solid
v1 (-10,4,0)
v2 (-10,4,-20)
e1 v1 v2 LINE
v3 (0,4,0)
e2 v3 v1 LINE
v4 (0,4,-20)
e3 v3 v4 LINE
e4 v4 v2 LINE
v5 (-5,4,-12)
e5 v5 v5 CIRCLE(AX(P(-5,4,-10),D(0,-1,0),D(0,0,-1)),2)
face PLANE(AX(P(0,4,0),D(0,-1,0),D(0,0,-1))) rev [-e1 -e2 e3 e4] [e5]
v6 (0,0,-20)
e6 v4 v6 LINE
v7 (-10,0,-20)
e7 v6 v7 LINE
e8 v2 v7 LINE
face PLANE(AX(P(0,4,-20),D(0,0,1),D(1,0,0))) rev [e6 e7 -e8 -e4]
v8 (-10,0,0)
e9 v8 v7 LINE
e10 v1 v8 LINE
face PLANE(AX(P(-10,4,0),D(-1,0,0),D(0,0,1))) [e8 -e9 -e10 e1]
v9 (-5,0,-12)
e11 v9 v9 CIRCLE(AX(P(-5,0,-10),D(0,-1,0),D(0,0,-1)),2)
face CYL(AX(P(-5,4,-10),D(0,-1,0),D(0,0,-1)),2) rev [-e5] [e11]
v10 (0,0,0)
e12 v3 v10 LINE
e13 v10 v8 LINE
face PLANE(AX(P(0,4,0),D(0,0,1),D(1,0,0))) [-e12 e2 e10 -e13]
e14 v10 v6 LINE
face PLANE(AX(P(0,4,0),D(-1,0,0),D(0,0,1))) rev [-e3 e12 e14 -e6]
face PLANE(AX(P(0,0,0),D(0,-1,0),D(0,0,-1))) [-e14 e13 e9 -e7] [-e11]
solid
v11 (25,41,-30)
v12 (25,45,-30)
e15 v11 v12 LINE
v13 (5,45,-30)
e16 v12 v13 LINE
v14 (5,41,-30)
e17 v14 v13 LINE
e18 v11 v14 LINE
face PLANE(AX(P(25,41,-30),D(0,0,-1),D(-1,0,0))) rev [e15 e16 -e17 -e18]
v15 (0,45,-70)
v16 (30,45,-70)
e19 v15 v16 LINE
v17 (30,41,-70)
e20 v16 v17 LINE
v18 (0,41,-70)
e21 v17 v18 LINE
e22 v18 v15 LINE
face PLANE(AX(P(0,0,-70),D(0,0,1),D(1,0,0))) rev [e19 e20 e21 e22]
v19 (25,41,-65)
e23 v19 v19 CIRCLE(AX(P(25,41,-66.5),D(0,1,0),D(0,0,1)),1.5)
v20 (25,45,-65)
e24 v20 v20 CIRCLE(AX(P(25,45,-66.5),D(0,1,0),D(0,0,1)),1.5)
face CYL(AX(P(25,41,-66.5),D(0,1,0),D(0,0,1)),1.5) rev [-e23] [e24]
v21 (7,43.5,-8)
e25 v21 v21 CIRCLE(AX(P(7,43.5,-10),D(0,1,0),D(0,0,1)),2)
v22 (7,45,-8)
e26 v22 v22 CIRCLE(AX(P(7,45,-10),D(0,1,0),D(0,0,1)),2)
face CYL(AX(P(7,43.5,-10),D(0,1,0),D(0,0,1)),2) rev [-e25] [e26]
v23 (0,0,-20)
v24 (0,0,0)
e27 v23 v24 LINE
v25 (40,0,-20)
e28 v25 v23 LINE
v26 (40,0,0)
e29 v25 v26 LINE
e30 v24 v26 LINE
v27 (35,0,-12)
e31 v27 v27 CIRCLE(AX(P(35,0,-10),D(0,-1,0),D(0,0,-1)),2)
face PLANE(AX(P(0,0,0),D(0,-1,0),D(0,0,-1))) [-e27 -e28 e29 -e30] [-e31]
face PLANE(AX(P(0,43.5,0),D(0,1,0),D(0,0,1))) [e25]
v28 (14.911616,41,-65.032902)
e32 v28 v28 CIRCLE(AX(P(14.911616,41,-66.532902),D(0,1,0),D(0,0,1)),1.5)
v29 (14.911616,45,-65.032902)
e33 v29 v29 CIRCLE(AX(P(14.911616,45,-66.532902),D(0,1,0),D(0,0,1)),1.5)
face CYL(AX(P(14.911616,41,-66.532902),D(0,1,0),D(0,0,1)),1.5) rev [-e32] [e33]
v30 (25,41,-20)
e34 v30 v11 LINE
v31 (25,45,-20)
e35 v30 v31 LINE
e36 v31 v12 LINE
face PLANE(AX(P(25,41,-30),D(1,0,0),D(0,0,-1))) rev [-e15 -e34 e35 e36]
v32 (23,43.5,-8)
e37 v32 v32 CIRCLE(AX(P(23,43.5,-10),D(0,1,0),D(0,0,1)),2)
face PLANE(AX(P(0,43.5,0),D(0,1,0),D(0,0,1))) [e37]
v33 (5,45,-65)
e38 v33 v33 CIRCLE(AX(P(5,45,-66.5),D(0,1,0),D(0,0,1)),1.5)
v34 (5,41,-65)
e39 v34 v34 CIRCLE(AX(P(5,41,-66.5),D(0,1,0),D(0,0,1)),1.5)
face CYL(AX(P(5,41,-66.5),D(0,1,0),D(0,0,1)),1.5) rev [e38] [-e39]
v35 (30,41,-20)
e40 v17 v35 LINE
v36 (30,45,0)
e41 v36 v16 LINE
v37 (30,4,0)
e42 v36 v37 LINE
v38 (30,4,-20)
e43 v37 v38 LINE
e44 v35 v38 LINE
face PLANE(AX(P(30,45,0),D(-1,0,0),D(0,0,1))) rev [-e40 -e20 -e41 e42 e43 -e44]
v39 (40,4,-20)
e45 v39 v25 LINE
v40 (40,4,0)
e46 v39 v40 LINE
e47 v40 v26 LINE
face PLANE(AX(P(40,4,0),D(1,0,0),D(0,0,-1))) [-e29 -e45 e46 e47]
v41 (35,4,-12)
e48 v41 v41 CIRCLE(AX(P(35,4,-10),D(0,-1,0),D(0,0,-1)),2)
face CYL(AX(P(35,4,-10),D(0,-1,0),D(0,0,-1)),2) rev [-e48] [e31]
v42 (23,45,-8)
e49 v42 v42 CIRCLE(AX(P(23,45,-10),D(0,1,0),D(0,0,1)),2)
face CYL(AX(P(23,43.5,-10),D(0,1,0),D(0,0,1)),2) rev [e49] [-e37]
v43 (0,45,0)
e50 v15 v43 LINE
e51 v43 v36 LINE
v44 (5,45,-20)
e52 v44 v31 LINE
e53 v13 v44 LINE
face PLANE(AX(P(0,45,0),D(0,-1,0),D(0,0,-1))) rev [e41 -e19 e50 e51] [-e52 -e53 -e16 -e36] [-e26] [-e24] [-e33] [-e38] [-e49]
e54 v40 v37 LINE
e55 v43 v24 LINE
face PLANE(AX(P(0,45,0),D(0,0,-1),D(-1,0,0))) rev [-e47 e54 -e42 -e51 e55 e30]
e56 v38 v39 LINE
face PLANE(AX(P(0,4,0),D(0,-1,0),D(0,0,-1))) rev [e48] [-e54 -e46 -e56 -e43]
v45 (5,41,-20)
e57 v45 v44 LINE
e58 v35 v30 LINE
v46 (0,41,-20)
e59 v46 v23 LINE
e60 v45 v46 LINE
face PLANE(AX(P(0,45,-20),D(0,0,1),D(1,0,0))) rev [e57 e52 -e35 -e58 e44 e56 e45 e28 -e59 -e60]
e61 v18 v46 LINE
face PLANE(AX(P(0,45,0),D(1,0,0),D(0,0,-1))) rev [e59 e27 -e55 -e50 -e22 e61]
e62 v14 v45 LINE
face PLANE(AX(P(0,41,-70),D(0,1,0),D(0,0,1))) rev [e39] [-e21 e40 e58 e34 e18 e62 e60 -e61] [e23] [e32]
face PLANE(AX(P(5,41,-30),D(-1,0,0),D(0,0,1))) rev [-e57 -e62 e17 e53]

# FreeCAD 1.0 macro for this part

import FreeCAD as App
import Part
import Sketcher

V = App.Vector
Q = App.Units.Quantity


def add_polygon(sketch, points):
    """Adds a closed chain of lines whose ends are joined by coincident constraints."""
    first, n = sketch.GeometryCount, len(points)
    for a, b in zip(points, points[1:] + points[:1]):
        sketch.addGeometry(Part.LineSegment(App.Vector(*a, 0), App.Vector(*b, 0)), False)
    for i in range(n):
        sketch.addConstraint(Sketcher.Constraint("Coincident", first + i, 2, first + (i + 1) % n, 1))

doc = App.newDocument("Part")
body = doc.addObject("PartDesign::Body", "Body")

# Sketch on XZ plane
sketch1 = body.newObject("Sketcher::SketchObject", "Sketch")
sketch1.AttachmentSupport = (doc.getObject("XZ_Plane"), [""])
sketch1.MapMode = "FlatFace"
add_polygon(sketch1, [(0, -20), (0, 0), (30, 0), (30, -20)])  # lines 0-3
sketch1.addConstraint(Sketcher.Constraint("Vertical", 0))
sketch1.addConstraint(Sketcher.Constraint("Horizontal", 1))
sketch1.addConstraint(Sketcher.Constraint("Vertical", 2))
sketch1.addConstraint(Sketcher.Constraint("Horizontal", 3))
sketch1.addConstraint(Sketcher.Constraint("Coincident", 0, 2, -1, 1))
sketch1.addConstraint(Sketcher.Constraint("DistanceX", 1, 1, 1, 2, Q("30 mm")))
sketch1.addConstraint(Sketcher.Constraint("DistanceY", 0, 1, 0, 2, Q("20 mm")))
pad1 = body.newObject("PartDesign::Pad", "Pad")
pad1.Profile = sketch1
pad1.Length = 45
pad1.Reversed = True

# Sketch on XZ plane
sketch2 = body.newObject("Sketcher::SketchObject", "Sketch001")
sketch2.AttachmentSupport = (doc.getObject("XZ_Plane"), [""])
sketch2.MapMode = "FlatFace"
add_polygon(sketch2, [(30, 0), (30, -20), (40, -20), (40, 0)])  # lines 0-3
sketch2.addConstraint(Sketcher.Constraint("Vertical", 0))
sketch2.addConstraint(Sketcher.Constraint("Horizontal", 1))
sketch2.addConstraint(Sketcher.Constraint("Vertical", 2))
sketch2.addConstraint(Sketcher.Constraint("Horizontal", 3))
sketch2.addConstraint(Sketcher.Constraint("PointOnObject", 2, 2, -1))
sketch2.addConstraint(Sketcher.Constraint("DistanceX", 1, 1, 1, 2, Q("10 mm")))
sketch2.addConstraint(Sketcher.Constraint("DistanceY", 0, 2, 0, 1, Q("20 mm")))
sketch2.addConstraint(Sketcher.Constraint("DistanceX", -1, 1, 0, 2, Q("30 mm")))
pad2 = body.newObject("PartDesign::Pad", "Pad001")
pad2.Profile = sketch2
pad2.Length = 4
pad2.Reversed = True
body2 = doc.addObject("PartDesign::Body", "Body001")

# Sketch on XZ plane
sketch3 = body2.newObject("Sketcher::SketchObject", "Sketch002")
sketch3.AttachmentSupport = (doc.getObject("XZ_Plane001"), [""])
sketch3.MapMode = "FlatFace"
add_polygon(sketch3, [(0, -20), (0, 0), (-10, 0), (-10, -20)])  # lines 0-3
sketch3.addConstraint(Sketcher.Constraint("Vertical", 0))
sketch3.addConstraint(Sketcher.Constraint("Horizontal", 1))
sketch3.addConstraint(Sketcher.Constraint("Vertical", 2))
sketch3.addConstraint(Sketcher.Constraint("Horizontal", 3))
sketch3.addConstraint(Sketcher.Constraint("Coincident", 0, 2, -1, 1))
sketch3.addConstraint(Sketcher.Constraint("DistanceX", 1, 2, 1, 1, Q("10 mm")))
sketch3.addConstraint(Sketcher.Constraint("DistanceY", 0, 1, 0, 2, Q("20 mm")))
pad3 = body2.newObject("PartDesign::Pad", "Pad002")
pad3.Profile = sketch3
pad3.Length = 4
pad3.Reversed = True
body3 = doc.addObject("PartDesign::Body", "Body002")
body3.AllowCompound = True

# Sketch on XZ plane
sketch4 = body3.newObject("Sketcher::SketchObject", "Sketch003")
sketch4.AttachmentSupport = (doc.getObject("XZ_Plane002"), [""])
sketch4.MapMode = "FlatFace"
sketch4.addGeometry(Part.Circle(V(35, -10, 0), V(0, 0, 1), 2), False)
sketch4.addGeometry(Part.Circle(V(-5, -10, 0), V(0, 0, 1), 2), False)
sketch4.addConstraint(Sketcher.Constraint("Equal", 0, 1))
sketch4.addConstraint(Sketcher.Constraint("Horizontal", 0, 3, 1, 3))
sketch4.addConstraint(Sketcher.Constraint("Diameter", 0, Q("4 mm")))
sketch4.addConstraint(Sketcher.Constraint("DistanceX", -1, 1, 0, 3, Q("35 mm")))
sketch4.addConstraint(Sketcher.Constraint("DistanceY", 0, 3, -1, 1, Q("10 mm")))
sketch4.addConstraint(Sketcher.Constraint("DistanceX", 1, 3, -1, 1, Q("5 mm")))
pad4 = body3.newObject("PartDesign::Pad", "Pad003")
pad4.Profile = sketch4
pad4.Length = 4
pad4.Reversed = True
doc.recompute()

body4 = doc.addObject("PartDesign::Body", "Body003")
body4.BaseFeature = body3
boolean = body.newObject("PartDesign::Boolean", "Boolean")
boolean.Type = "Cut"
boolean.addObjects([body4])
doc.recompute()

# Sketch on XZ plane
sketch5 = body.newObject("Sketcher::SketchObject", "Sketch004")
sketch5.AttachmentSupport = (doc.getObject("XZ_Plane"), [""])
sketch5.MapMode = "FlatFace"
sketch5.AttachmentOffset = App.Placement(V(0, 0, -45), App.Rotation())
sketch5.addGeometry(Part.Circle(V(7, -10, 0), V(0, 0, 1), 2), False)
sketch5.addGeometry(Part.Circle(V(23, -10, 0), V(0, 0, 1), 2), False)
sketch5.addConstraint(Sketcher.Constraint("Equal", 0, 1))
sketch5.addConstraint(Sketcher.Constraint("Horizontal", 0, 3, 1, 3))
sketch5.addConstraint(Sketcher.Constraint("Diameter", 0, Q("4 mm")))
sketch5.addConstraint(Sketcher.Constraint("DistanceX", -1, 1, 0, 3, Q("7 mm")))
sketch5.addConstraint(Sketcher.Constraint("DistanceY", 0, 3, -1, 1, Q("10 mm")))
sketch5.addConstraint(Sketcher.Constraint("DistanceX", -1, 1, 1, 3, Q("23 mm")))
pocket1 = body.newObject("PartDesign::Pocket", "Pocket")
pocket1.Profile = sketch5
pocket1.Length = 1.5
pocket1.Reversed = True

# Sketch on XY plane
sketch6 = body.newObject("Sketcher::SketchObject", "Sketch005")
sketch6.AttachmentSupport = (doc.getObject("XY_Plane"), [""])
sketch6.MapMode = "FlatFace"
sketch6.AttachmentOffset = App.Placement(V(0, 0, -20), App.Rotation())
add_polygon(sketch6, [(30, 45), (30, 41), (0, 41), (0, 45)])  # lines 0-3
sketch6.addConstraint(Sketcher.Constraint("Vertical", 0))
sketch6.addConstraint(Sketcher.Constraint("Horizontal", 1))
sketch6.addConstraint(Sketcher.Constraint("Vertical", 2))
sketch6.addConstraint(Sketcher.Constraint("Horizontal", 3))
sketch6.addConstraint(Sketcher.Constraint("PointOnObject", 1, 2, -2))
sketch6.addConstraint(Sketcher.Constraint("DistanceX", 1, 2, 1, 1, Q("30 mm")))
sketch6.addConstraint(Sketcher.Constraint("DistanceY", 0, 2, 0, 1, Q("4 mm")))
sketch6.addConstraint(Sketcher.Constraint("DistanceY", -1, 1, 0, 2, Q("41 mm")))
pad5 = body.newObject("PartDesign::Pad", "Pad004")
pad5.Profile = sketch6
pad5.Length = 50
pad5.Reversed = True

# Sketch on XZ plane
sketch7 = body.newObject("Sketcher::SketchObject", "Sketch006")
sketch7.AttachmentSupport = (doc.getObject("XZ_Plane"), [""])
sketch7.MapMode = "FlatFace"
sketch7.AttachmentOffset = App.Placement(V(0, 0, -45), App.Rotation())
add_polygon(sketch7, [(5, -30), (5, -20), (25, -20), (25, -30)])  # lines 0-3
sketch7.addConstraint(Sketcher.Constraint("Vertical", 0))
sketch7.addConstraint(Sketcher.Constraint("Horizontal", 1))
sketch7.addConstraint(Sketcher.Constraint("Vertical", 2))
sketch7.addConstraint(Sketcher.Constraint("Horizontal", 3))
sketch7.addConstraint(Sketcher.Constraint("DistanceX", 1, 1, 1, 2, Q("20 mm")))
sketch7.addConstraint(Sketcher.Constraint("DistanceY", 0, 1, 0, 2, Q("10 mm")))
sketch7.addConstraint(Sketcher.Constraint("DistanceX", -1, 1, 0, 2, Q("5 mm")))
sketch7.addConstraint(Sketcher.Constraint("DistanceY", 0, 2, -1, 1, Q("20 mm")))
pocket2 = body.newObject("PartDesign::Pocket", "Pocket001")
pocket2.Profile = sketch7
pocket2.Length = 4
pocket2.Reversed = True

# Sketch on XZ plane
sketch8 = body.newObject("Sketcher::SketchObject", "Sketch007")
sketch8.AttachmentSupport = (doc.getObject("XZ_Plane"), [""])
sketch8.MapMode = "FlatFace"
sketch8.AttachmentOffset = App.Placement(V(0, 0, -45), App.Rotation())
sketch8.addGeometry(Part.Circle(V(25, -66.5, 0), V(0, 0, 1), 1.5), False)
sketch8.addGeometry(Part.Circle(V(14.9, -66.5, 0), V(0, 0, 1), 1.5), False)
sketch8.addGeometry(Part.Circle(V(5, -66.5, 0), V(0, 0, 1), 1.5), False)
sketch8.addConstraint(Sketcher.Constraint("Equal", 0, 1))
sketch8.addConstraint(Sketcher.Constraint("Equal", 1, 2))
sketch8.addConstraint(Sketcher.Constraint("Horizontal", 0, 3, 2, 3))
sketch8.addConstraint(Sketcher.Constraint("Diameter", 0, Q("3 mm")))
sketch8.addConstraint(Sketcher.Constraint("DistanceX", -1, 1, 0, 3, Q("25 mm")))
sketch8.addConstraint(Sketcher.Constraint("DistanceX", -1, 1, 2, 3, Q("5 mm")))
sketch8.addConstraint(Sketcher.Constraint("DistanceY", 0, 3, -1, 1, Q("66.5 mm")))
sketch8.addConstraint(Sketcher.Constraint("DistanceY", 1, 3, -1, 1, Q("66.532902 mm")))
sketch8.addConstraint(Sketcher.Constraint("DistanceX", -1, 1, 1, 3, Q("14.911616 mm")))
pocket3 = body.newObject("PartDesign::Pocket", "Pocket002")
pocket3.Profile = sketch8
pocket3.Length = 4
pocket3.Reversed = True
doc.recompute()

boolean2 = body2.newObject("PartDesign::Boolean", "Boolean001")
boolean2.Type = "Cut"
boolean2.addObjects([body3])

doc.recompute()
